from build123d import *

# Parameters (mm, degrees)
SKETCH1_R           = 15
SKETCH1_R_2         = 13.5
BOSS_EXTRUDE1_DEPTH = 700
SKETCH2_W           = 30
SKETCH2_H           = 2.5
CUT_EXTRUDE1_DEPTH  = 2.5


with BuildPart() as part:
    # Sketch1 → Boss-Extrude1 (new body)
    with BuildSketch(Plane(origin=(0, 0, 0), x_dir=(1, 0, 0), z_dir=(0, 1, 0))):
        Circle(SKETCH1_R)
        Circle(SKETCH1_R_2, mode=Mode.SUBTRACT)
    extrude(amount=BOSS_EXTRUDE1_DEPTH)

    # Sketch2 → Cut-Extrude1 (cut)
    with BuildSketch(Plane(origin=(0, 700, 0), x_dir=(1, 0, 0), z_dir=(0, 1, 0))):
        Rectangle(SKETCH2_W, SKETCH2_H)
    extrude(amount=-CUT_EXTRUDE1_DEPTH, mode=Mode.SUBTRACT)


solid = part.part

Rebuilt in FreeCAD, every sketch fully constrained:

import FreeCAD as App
import Part
import Sketcher
Q = App.Units.Quantity


def add_polygon(sketch, points):
    """Adds a closed chain of lines whose ends are joined by coincident constraints."""
    first, n = sketch.GeometryCount, len(points)
    for a, b in zip(points, points[1:] + points[:1]):
        sketch.addGeometry(Part.LineSegment(App.Vector(*a, 0), App.Vector(*b, 0)), False)
    for i in range(n):
        sketch.addConstraint(Sketcher.Constraint("Coincident", first + i, 2, first + (i + 1) % n, 1))

doc = App.newDocument("Part")
body = doc.addObject("PartDesign::Body", "Body")

sketch1 = body.newObject("Sketcher::SketchObject", "Sketch")
sketch1.AttachmentSupport = (doc.getObject("XZ_Plane"), [""])
sketch1.MapMode = "FlatFace"
sketch1.addGeometry(Part.Circle(App.Vector(0, 0, 0), App.Vector(0, 0, 1), 15), False)
sketch1.addGeometry(Part.Circle(App.Vector(0, 0, 0), App.Vector(0, 0, 1), 14), False)
sketch1.addConstraint(Sketcher.Constraint("Coincident", 0, 3, -1, 1))
sketch1.addConstraint(Sketcher.Constraint("Coincident", 1, 3, -1, 1))
sketch1.addConstraint(Sketcher.Constraint("Diameter", 0, Q("30 mm")))
sketch1.addConstraint(Sketcher.Constraint("Diameter", 1, Q("27 mm")))
pad1 = body.newObject("PartDesign::Pad", "Pad")
pad1.Profile = sketch1
pad1.Length = 700
pad1.Reversed = True

sketch2 = body.newObject("Sketcher::SketchObject", "Sketch001")
sketch2.AttachmentSupport = (doc.getObject("XZ_Plane"), [""])
sketch2.MapMode = "FlatFace"
sketch2.AttachmentOffset = App.Placement(App.Vector(0, 0, -700), App.Rotation())
add_polygon(sketch2, [(-15, -1.2), (-15, 1.2), (15, 1.2), (15, -1.2)])
sketch2.addConstraint(Sketcher.Constraint("Vertical", 0))
sketch2.addConstraint(Sketcher.Constraint("Horizontal", 1))
sketch2.addConstraint(Sketcher.Constraint("Vertical", 2))
sketch2.addConstraint(Sketcher.Constraint("Horizontal", 3))
sketch2.addConstraint(Sketcher.Constraint("Symmetric", 0, 2, 2, 2, -1, 1))
sketch2.addConstraint(Sketcher.Constraint("DistanceX", 1, 1, 1, 2, Q("30 mm")))
sketch2.addConstraint(Sketcher.Constraint("DistanceY", 0, 1, 0, 2, Q("2.5 mm")))
pocket1 = body.newObject("PartDesign::Pocket", "Pocket")
pocket1.Profile = sketch2
pocket1.Length = 2.5
pocket1.Reversed = True

doc.recompute()
